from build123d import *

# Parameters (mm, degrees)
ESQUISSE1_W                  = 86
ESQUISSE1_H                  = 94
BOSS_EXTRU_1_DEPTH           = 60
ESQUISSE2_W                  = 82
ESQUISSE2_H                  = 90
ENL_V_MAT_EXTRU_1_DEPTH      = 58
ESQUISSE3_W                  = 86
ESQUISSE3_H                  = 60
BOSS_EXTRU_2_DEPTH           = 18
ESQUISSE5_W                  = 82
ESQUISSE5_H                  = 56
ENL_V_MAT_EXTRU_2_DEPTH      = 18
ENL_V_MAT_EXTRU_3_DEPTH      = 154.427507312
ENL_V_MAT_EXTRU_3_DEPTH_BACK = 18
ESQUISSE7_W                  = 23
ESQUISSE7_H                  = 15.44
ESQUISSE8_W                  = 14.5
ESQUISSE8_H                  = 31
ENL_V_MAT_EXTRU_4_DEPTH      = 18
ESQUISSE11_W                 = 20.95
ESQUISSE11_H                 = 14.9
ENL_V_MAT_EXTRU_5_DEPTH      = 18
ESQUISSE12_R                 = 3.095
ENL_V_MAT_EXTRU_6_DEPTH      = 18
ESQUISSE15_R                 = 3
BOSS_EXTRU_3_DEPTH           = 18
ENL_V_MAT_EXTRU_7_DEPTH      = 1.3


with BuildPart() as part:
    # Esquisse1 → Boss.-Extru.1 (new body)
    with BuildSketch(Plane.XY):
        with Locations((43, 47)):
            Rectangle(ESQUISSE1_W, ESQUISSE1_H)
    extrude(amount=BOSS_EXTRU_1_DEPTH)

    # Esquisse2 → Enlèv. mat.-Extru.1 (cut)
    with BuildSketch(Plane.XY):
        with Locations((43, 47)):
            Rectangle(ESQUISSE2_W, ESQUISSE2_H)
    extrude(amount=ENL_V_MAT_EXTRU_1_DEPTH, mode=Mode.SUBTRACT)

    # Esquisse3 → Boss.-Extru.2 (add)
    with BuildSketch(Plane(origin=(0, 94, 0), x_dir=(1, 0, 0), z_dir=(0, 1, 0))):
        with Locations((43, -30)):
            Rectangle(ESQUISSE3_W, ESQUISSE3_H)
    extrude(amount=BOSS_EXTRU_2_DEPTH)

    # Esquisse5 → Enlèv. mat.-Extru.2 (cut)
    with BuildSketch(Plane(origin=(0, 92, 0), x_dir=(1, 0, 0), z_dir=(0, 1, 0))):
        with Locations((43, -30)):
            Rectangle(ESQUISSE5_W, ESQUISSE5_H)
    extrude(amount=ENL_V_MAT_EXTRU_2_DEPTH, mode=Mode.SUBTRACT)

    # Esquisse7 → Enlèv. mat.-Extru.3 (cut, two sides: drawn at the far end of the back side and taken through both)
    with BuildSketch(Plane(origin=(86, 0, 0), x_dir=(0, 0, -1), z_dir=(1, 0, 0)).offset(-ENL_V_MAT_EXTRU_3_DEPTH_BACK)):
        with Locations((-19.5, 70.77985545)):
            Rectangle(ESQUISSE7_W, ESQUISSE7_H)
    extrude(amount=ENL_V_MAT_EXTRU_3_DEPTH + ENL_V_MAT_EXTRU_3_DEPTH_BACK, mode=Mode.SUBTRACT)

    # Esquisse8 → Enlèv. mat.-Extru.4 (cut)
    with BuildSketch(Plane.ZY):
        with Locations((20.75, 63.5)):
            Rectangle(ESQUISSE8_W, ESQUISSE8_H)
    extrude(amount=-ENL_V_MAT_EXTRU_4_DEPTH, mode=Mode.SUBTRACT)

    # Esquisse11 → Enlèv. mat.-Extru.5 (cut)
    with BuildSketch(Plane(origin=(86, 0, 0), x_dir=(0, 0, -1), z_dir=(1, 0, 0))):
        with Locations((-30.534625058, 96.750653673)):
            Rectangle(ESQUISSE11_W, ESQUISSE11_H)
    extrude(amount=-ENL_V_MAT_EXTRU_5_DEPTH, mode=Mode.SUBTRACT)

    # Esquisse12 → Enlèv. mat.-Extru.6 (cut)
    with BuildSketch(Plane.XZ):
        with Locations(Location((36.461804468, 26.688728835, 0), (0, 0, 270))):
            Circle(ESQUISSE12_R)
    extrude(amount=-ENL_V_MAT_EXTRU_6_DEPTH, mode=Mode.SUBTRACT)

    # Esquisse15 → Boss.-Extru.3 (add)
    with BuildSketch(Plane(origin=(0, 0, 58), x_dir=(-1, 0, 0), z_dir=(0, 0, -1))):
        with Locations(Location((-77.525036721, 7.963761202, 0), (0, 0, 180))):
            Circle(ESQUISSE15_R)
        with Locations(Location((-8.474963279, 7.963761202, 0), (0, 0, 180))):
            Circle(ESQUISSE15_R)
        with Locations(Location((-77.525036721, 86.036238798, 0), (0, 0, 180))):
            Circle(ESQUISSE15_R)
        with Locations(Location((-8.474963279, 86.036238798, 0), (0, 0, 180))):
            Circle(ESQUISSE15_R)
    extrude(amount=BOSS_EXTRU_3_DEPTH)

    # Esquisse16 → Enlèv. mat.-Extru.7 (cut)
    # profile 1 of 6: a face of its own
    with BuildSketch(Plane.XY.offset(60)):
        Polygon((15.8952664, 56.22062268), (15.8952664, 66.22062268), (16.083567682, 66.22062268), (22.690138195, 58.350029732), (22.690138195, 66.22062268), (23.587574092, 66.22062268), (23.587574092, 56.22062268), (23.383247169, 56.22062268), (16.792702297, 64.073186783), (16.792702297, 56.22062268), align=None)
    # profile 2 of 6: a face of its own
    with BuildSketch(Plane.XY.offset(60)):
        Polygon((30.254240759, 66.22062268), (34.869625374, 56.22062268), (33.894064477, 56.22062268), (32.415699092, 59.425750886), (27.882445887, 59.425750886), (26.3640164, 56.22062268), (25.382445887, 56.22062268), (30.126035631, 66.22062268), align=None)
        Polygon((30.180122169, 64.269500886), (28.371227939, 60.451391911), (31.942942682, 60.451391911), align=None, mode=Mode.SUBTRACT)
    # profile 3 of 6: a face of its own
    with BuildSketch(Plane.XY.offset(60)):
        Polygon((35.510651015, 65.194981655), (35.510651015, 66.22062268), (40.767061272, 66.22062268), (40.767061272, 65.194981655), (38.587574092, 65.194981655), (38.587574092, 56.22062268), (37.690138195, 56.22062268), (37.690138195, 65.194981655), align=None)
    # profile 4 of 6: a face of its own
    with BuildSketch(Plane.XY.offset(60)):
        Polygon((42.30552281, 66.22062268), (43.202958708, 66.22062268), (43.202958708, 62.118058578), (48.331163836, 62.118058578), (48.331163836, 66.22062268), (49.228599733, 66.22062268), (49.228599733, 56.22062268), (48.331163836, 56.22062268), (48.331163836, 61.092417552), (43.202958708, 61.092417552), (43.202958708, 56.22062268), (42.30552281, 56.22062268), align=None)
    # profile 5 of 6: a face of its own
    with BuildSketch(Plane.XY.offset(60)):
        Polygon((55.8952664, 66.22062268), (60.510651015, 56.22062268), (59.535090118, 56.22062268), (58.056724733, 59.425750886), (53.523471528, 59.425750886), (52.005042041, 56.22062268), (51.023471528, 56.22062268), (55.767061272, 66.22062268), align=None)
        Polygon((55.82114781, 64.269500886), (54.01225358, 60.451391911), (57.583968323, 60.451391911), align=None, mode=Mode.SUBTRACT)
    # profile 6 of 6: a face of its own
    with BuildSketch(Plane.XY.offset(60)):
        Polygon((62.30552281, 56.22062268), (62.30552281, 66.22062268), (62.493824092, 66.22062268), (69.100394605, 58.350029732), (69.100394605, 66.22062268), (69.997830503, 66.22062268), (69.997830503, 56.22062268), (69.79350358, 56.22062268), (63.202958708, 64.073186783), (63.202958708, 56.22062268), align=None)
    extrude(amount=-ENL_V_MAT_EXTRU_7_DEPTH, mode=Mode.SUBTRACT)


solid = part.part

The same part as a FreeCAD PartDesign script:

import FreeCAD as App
import Part
import Sketcher


def add_polygon(sketch, points):
    """Adds a closed chain of lines whose ends are joined by coincident constraints."""
    first, n = sketch.GeometryCount, len(points)
    for a, b in zip(points, points[1:] + points[:1]):
        sketch.addGeometry(Part.LineSegment(App.Vector(*a, 0), App.Vector(*b, 0)), False)
    for i in range(n):
        sketch.addConstraint(Sketcher.Constraint("Coincident", first + i, 2, first + (i + 1) % n, 1))

doc = App.newDocument("Part")
body = doc.addObject("PartDesign::Body", "Body")

# Sketch on XY plane
sketch1 = body.newObject("Sketcher::SketchObject", "Sketch")
sketch1.AttachmentSupport = (doc.getObject("XY_Plane"), [""])
sketch1.MapMode = "FlatFace"
add_polygon(sketch1, [(0, 94), (0, 0), (86, 0), (86, 94)])  # lines 0-3
sketch1.addConstraint([
    Sketcher.Constraint("Vertical", 0),
    Sketcher.Constraint("Horizontal", 1),
    Sketcher.Constraint("Vertical", 2),
    Sketcher.Constraint("Horizontal", 3),
    Sketcher.Constraint("Coincident", 0, 2, -1, 1),
    Sketcher.Constraint("DistanceX", 1, 1, 1, 2, 86.0),
    Sketcher.Constraint("DistanceY", 0, 2, 0, 1, 94.0),
])
pad1 = body.newObject("PartDesign::Pad", "Pad")
pad1.Profile = sketch1
pad1.Length = 60

# Sketch on XY plane
sketch2 = body.newObject("Sketcher::SketchObject", "Sketch001")
sketch2.AttachmentSupport = (doc.getObject("XY_Plane"), [""])
sketch2.MapMode = "FlatFace"
add_polygon(sketch2, [(2, 92), (2, 2), (84, 2), (84, 92)])  # lines 0-3
sketch2.addConstraint([
    Sketcher.Constraint("Vertical", 0),
    Sketcher.Constraint("Horizontal", 1),
    Sketcher.Constraint("Vertical", 2),
    Sketcher.Constraint("Horizontal", 3),
    Sketcher.Constraint("DistanceX", 1, 1, 1, 2, 82.0),
    Sketcher.Constraint("DistanceY", 0, 2, 0, 1, 90.0),
    Sketcher.Constraint("DistanceX", -1, 1, 0, 2, 2.0),
    Sketcher.Constraint("DistanceY", -1, 1, 0, 2, 2.0),
])
pocket1 = body.newObject("PartDesign::Pocket", "Pocket")
pocket1.Profile = sketch2
pocket1.Length = 58
pocket1.Reversed = True

# Sketch on XZ plane
sketch3 = body.newObject("Sketcher::SketchObject", "Sketch002")
sketch3.AttachmentSupport = (doc.getObject("XZ_Plane"), [""])
sketch3.MapMode = "FlatFace"
sketch3.AttachmentOffset = App.Placement(App.Vector(0, 0, -94), App.Rotation())
add_polygon(sketch3, [(0, 0), (0, 60), (86, 60), (86, 0)])  # lines 0-3
sketch3.addConstraint([
    Sketcher.Constraint("Vertical", 0),
    Sketcher.Constraint("Horizontal", 1),
    Sketcher.Constraint("Vertical", 2),
    Sketcher.Constraint("Horizontal", 3),
    Sketcher.Constraint("Coincident", 3, 2, -1, 1),
    Sketcher.Constraint("DistanceX", 1, 1, 1, 2, 86.0),
    Sketcher.Constraint("DistanceY", 0, 1, 0, 2, 60.0),
])
pad2 = body.newObject("PartDesign::Pad", "Pad001")
pad2.Profile = sketch3
pad2.Length = 18
pad2.Reversed = True

# Sketch on XZ plane
sketch4 = body.newObject("Sketcher::SketchObject", "Sketch003")
sketch4.AttachmentSupport = (doc.getObject("XZ_Plane"), [""])
sketch4.MapMode = "FlatFace"
sketch4.AttachmentOffset = App.Placement(App.Vector(0, 0, -92), App.Rotation())
add_polygon(sketch4, [(2, 2), (2, 58), (84, 58), (84, 2)])  # lines 0-3
sketch4.addConstraint([
    Sketcher.Constraint("Vertical", 0),
    Sketcher.Constraint("Horizontal", 1),
    Sketcher.Constraint("Vertical", 2),
    Sketcher.Constraint("Horizontal", 3),
    Sketcher.Constraint("DistanceX", 1, 1, 1, 2, 82.0),
    Sketcher.Constraint("DistanceY", 0, 1, 0, 2, 56.0),
    Sketcher.Constraint("DistanceX", -1, 1, 0, 2, 2.0),
    Sketcher.Constraint("DistanceY", -1, 1, 0, 2, 58.0),
])
pocket2 = body.newObject("PartDesign::Pocket", "Pocket001")
pocket2.Profile = sketch4
pocket2.Length = 18

# Sketch on YZ plane
sketch5 = body.newObject("Sketcher::SketchObject", "Sketch004")
sketch5.AttachmentSupport = (doc.getObject("YZ_Plane"), [""])
sketch5.MapMode = "FlatFace"
sketch5.AttachmentOffset = App.Placement(App.Vector(0, 0, 86), App.Rotation())
add_polygon(sketch5, [(78, 31), (63, 31), (63, 8), (78, 8)])  # lines 0-3
sketch5.addConstraint([
    Sketcher.Constraint("Horizontal", 0),
    Sketcher.Constraint("Vertical", 1),
    Sketcher.Constraint("Horizontal", 2),
    Sketcher.Constraint("Vertical", 3),
    Sketcher.Constraint("DistanceY", 1, 2, 1, 1, 23.0),
    Sketcher.Constraint("DistanceY", -1, 1, 0, 2, 31.0),
    Sketcher.Constraint("DistanceX", 0, 2, 0, 1, 15.44),
    Sketcher.Constraint("DistanceX", -1, 1, 0, 2, 63.059855),
])
pocket3 = body.newObject("PartDesign::Pocket", "Pocket002")
pocket3.Profile = sketch5
pocket3.Type = "TwoLengths"
pocket3.Length = 154.427507
pocket3.Length2 = 18
pocket3.Reversed = True

# Sketch on YZ plane
sketch6 = body.newObject("Sketcher::SketchObject", "Sketch005")
sketch6.AttachmentSupport = (doc.getObject("YZ_Plane"), [""])
sketch6.MapMode = "FlatFace"
add_polygon(sketch6, [(79, 14), (48, 14), (48, 28), (79, 28)])  # lines 0-3
sketch6.addConstraint([
    Sketcher.Constraint("Horizontal", 0),
    Sketcher.Constraint("Vertical", 1),
    Sketcher.Constraint("Horizontal", 2),
    Sketcher.Constraint("Vertical", 3),
    Sketcher.Constraint("DistanceX", 0, 2, 0, 1, 31.0),
    Sketcher.Constraint("DistanceY", 1, 1, 1, 2, 14.5),
    Sketcher.Constraint("DistanceX", -1, 1, 0, 2, 48.0),
    Sketcher.Constraint("DistanceY", -1, 1, 1, 2, 28.0),
])
pocket4 = body.newObject("PartDesign::Pocket", "Pocket003")
pocket4.Profile = sketch6
pocket4.Length = 18
pocket4.Reversed = True

# Sketch on YZ plane
sketch7 = body.newObject("Sketcher::SketchObject", "Sketch006")
sketch7.AttachmentSupport = (doc.getObject("YZ_Plane"), [""])
sketch7.MapMode = "FlatFace"
sketch7.AttachmentOffset = App.Placement(App.Vector(0, 0, 86), App.Rotation())
add_polygon(sketch7, [(104, 41), (89, 41), (89, 20), (104, 20)])  # lines 0-3
sketch7.addConstraint([
    Sketcher.Constraint("Horizontal", 0),
    Sketcher.Constraint("Vertical", 1),
    Sketcher.Constraint("Horizontal", 2),
    Sketcher.Constraint("Vertical", 3),
    Sketcher.Constraint("DistanceX", 0, 2, 0, 1, 14.9),
    Sketcher.Constraint("DistanceY", 1, 2, 1, 1, 20.95),
    Sketcher.Constraint("DistanceX", -1, 1, 0, 2, 89.300654),
    Sketcher.Constraint("DistanceY", -1, 1, 0, 2, 41.009625),
])
pocket5 = body.newObject("PartDesign::Pocket", "Pocket004")
pocket5.Profile = sketch7
pocket5.Length = 18

# Sketch on XZ plane
sketch8 = body.newObject("Sketcher::SketchObject", "Sketch007")
sketch8.AttachmentSupport = (doc.getObject("XZ_Plane"), [""])
sketch8.MapMode = "FlatFace"
sketch8.addGeometry(Part.Circle(App.Vector(36.5, 26.7, 0), App.Vector(0, 0, 1), 3.1), False)
sketch8.addConstraint([
    Sketcher.Constraint("Diameter", 0, 6.19),
    Sketcher.Constraint("DistanceY", -1, 1, 0, 3, 26.688729),
    Sketcher.Constraint("DistanceX", -1, 1, 0, 3, 36.461804),
])
pocket6 = body.newObject("PartDesign::Pocket", "Pocket005")
pocket6.Profile = sketch8
pocket6.Length = 18

# Sketch on XY plane
sketch9 = body.newObject("Sketcher::SketchObject", "Sketch008")
sketch9.AttachmentSupport = (doc.getObject("XY_Plane"), [""])
sketch9.MapMode = "FlatFace"
sketch9.AttachmentOffset = App.Placement(App.Vector(0, 0, 58), App.Rotation())
sketch9.addGeometry([
    Part.Circle(App.Vector(77.5, 8, 0), App.Vector(0, 0, 1), 3),
    Part.Circle(App.Vector(8.5, 8, 0), App.Vector(0, 0, 1), 3),
    Part.Circle(App.Vector(77.5, 86, 0), App.Vector(0, 0, 1), 3),
    Part.Circle(App.Vector(8.5, 86, 0), App.Vector(0, 0, 1), 3),
], False)
sketch9.addConstraint([
    Sketcher.Constraint("Equal", 0, 1),
    Sketcher.Constraint("Equal", 1, 2),
    Sketcher.Constraint("Equal", 2, 3),
    Sketcher.Constraint("Horizontal", 0, 3, 1, 3),
    Sketcher.Constraint("Horizontal", 2, 3, 3, 3),
    Sketcher.Constraint("Vertical", 0, 3, 2, 3),
    Sketcher.Constraint("Vertical", 1, 3, 3, 3),
    Sketcher.Constraint("Diameter", 0, 6.0),
    Sketcher.Constraint("DistanceY", -1, 1, 0, 3, 7.963761),
    Sketcher.Constraint("DistanceY", -1, 1, 2, 3, 86.036239),
    Sketcher.Constraint("DistanceX", -1, 1, 0, 3, 77.525037),
    Sketcher.Constraint("DistanceX", -1, 1, 1, 3, 8.474963),
])
pad3 = body.newObject("PartDesign::Pad", "Pad002")
pad3.Profile = sketch9
pad3.Length = 18
pad3.Reversed = True

# Sketch on XY plane
sketch10 = body.newObject("Sketcher::SketchObject", "Sketch009")
sketch10.AttachmentSupport = (doc.getObject("XY_Plane"), [""])
sketch10.MapMode = "FlatFace"
sketch10.AttachmentOffset = App.Placement(App.Vector(0, 0, 60), App.Rotation())
add_polygon(sketch10, [(15.9, 66.22), (15.9, 56.22), (16.79, 56.22), (16.79, 64.07), (23.38, 56.22), (23.59, 56.22), (23.59, 66.22), (22.69, 66.22), (22.69, 58.35), (16.08, 66.22)])  # lines 0-9
add_polygon(sketch10, [(34.87, 56.22), (30.25, 66.22), (30.13, 66.22), (25.38, 56.22), (26.36, 56.22), (27.88, 59.43), (32.42, 59.43), (33.89, 56.22)])  # lines 10-17
add_polygon(sketch10, [(30.18, 64.27), (31.94, 60.45), (28.37, 60.45)])  # lines 18-20
add_polygon(sketch10, [(35.51, 66.22), (35.51, 65.19), (37.69, 65.19), (37.69, 56.22), (38.59, 56.22), (38.59, 65.19), (40.77, 65.19), (40.77, 66.22)])  # lines 21-28
add_polygon(sketch10, [(43.2, 66.22), (42.31, 66.22), (42.31, 56.22), (43.2, 56.22), (43.2, 61.09), (48.33, 61.09), (48.33, 56.22), (49.23, 56.22), (49.23, 66.22), (48.33, 66.22), (48.33, 62.12), (43.2, 62.12)])  # lines 29-40
add_polygon(sketch10, [(60.51, 56.22), (55.9, 66.22), (55.77, 66.22), (51.02, 56.22), (52.01, 56.22), (53.52, 59.43), (58.06, 59.43), (59.54, 56.22)])  # lines 41-48
add_polygon(sketch10, [(55.82, 64.27), (57.58, 60.45), (54.01, 60.45)])  # lines 49-51
add_polygon(sketch10, [(62.31, 66.22), (62.31, 56.22), (63.2, 56.22), (63.2, 64.07), (69.79, 56.22), (70, 56.22), (70, 66.22), (69.1, 66.22), (69.1, 58.35), (62.49, 66.22)])  # lines 52-61
sketch10.addConstraint([
    Sketcher.Constraint("Vertical", 0),
    Sketcher.Constraint("Horizontal", 1),
    Sketcher.Constraint("Vertical", 2),
    Sketcher.Constraint("Horizontal", 4),
    Sketcher.Constraint("Vertical", 5),
    Sketcher.Constraint("Horizontal", 6),
    Sketcher.Constraint("Vertical", 7),
    Sketcher.Constraint("Horizontal", 9),
    Sketcher.Constraint("Horizontal", 11),
    Sketcher.Constraint("Horizontal", 13),
    Sketcher.Constraint("Horizontal", 15),
    Sketcher.Constraint("Horizontal", 17),
    Sketcher.Constraint("Horizontal", 19),
    Sketcher.Constraint("Vertical", 21),
    Sketcher.Constraint("Horizontal", 22),
    Sketcher.Constraint("Vertical", 23),
    Sketcher.Constraint("Horizontal", 24),
    Sketcher.Constraint("Vertical", 25),
    Sketcher.Constraint("Horizontal", 26),
    Sketcher.Constraint("Vertical", 27),
    Sketcher.Constraint("Horizontal", 28),
    Sketcher.Constraint("Horizontal", 29),
    Sketcher.Constraint("Vertical", 30),
    Sketcher.Constraint("Horizontal", 31),
    Sketcher.Constraint("Vertical", 32),
    Sketcher.Constraint("Horizontal", 33),
    Sketcher.Constraint("Vertical", 34),
    Sketcher.Constraint("Horizontal", 35),
    Sketcher.Constraint("Vertical", 36),
    Sketcher.Constraint("Horizontal", 37),
    Sketcher.Constraint("Vertical", 38),
    Sketcher.Constraint("Horizontal", 39),
    Sketcher.Constraint("Vertical", 40),
    Sketcher.Constraint("Horizontal", 42),
    Sketcher.Constraint("Horizontal", 44),
    Sketcher.Constraint("Horizontal", 46),
    Sketcher.Constraint("Horizontal", 48),
    Sketcher.Constraint("Horizontal", 50),
    Sketcher.Constraint("Vertical", 52),
    Sketcher.Constraint("Horizontal", 53),
    Sketcher.Constraint("Vertical", 54),
    Sketcher.Constraint("Horizontal", 56),
    Sketcher.Constraint("Vertical", 57),
    Sketcher.Constraint("Horizontal", 58),
    Sketcher.Constraint("Vertical", 59),
    Sketcher.Constraint("Horizontal", 61),
    Sketcher.Constraint("Parallel", 10, 41),
    Sketcher.Constraint("Parallel", 12, 43),
    Sketcher.Constraint("Parallel", 14, 45),
    Sketcher.Constraint("Parallel", 16, 47),
    Sketcher.Constraint("Parallel", 18, 49),
    Sketcher.Constraint("Parallel", 20, 51),
    Sketcher.Constraint("Parallel", 3, 55),
    Sketcher.Constraint("Parallel", 8, 60),
    Sketcher.Constraint("Horizontal", 1, 2, 3, 2),
    Sketcher.Constraint("Horizontal", 6, 2, 8, 2),
    Sketcher.Constraint("Horizontal", 9, 2, 10, 2),
    Sketcher.Constraint("Horizontal", 4, 2, 12, 2),
    Sketcher.Constraint("Horizontal", 13, 2, 16, 2),
    Sketcher.Constraint("Horizontal", 17, 2, 23, 2),
    Sketcher.Constraint("Horizontal", 22, 2, 25, 2),
    Sketcher.Constraint("Horizontal", 11, 2, 27, 2),
    Sketcher.Constraint("Horizontal", 28, 2, 29, 2),
    Sketcher.Constraint("Horizontal", 24, 2, 30, 2),
    Sketcher.Constraint("Horizontal", 31, 2, 34, 2),
    Sketcher.Constraint("Horizontal", 29, 2, 36, 2),
    Sketcher.Constraint("Horizontal", 40, 2, 41, 2),
    Sketcher.Constraint("Horizontal", 35, 2, 43, 2),
    Sketcher.Constraint("Horizontal", 15, 2, 45, 2),
    Sketcher.Constraint("Horizontal", 44, 2, 47, 2),
    Sketcher.Constraint("Horizontal", 19, 2, 49, 2),
    Sketcher.Constraint("Horizontal", 20, 2, 51, 2),
    Sketcher.Constraint("Horizontal", 48, 2, 52, 2),
    Sketcher.Constraint("Horizontal", 2, 2, 54, 2),
    Sketcher.Constraint("Horizontal", 53, 2, 55, 2),
    Sketcher.Constraint("Horizontal", 42, 2, 57, 2),
    Sketcher.Constraint("Horizontal", 7, 2, 59, 2),
    Sketcher.Constraint("Horizontal", 58, 2, 60, 2),
    Sketcher.Constraint("Vertical", 34, 2, 37, 2),
    Sketcher.Constraint("Vertical", 32, 2, 39, 2),
    Sketcher.Constraint("Equal", 1, 6),
    Sketcher.Constraint("Equal", 6, 24),
    Sketcher.Constraint("Equal", 22, 26),
    Sketcher.Constraint("Equal", 24, 29),
    Sketcher.Constraint("Equal", 31, 35),
    Sketcher.Constraint("Equal", 11, 42),
    Sketcher.Constraint("Equal", 13, 44),
    Sketcher.Constraint("Equal", 15, 46),
    Sketcher.Constraint("Equal", 37, 53),
    Sketcher.Constraint("Equal", 4, 56),
    Sketcher.Constraint("Equal", 53, 58),
    Sketcher.Constraint("DistanceY", 0, 2, 0, 1, 10.0),
    Sketcher.Constraint("DistanceX", 9, 2, 9, 1, 0.188301),
    Sketcher.Constraint("DistanceX", 13, 1, 13, 2, 0.981571),
    Sketcher.Constraint("DistanceX", 17, 1, 17, 2, 0.975561),
    Sketcher.Constraint("DistanceX", 28, 2, 28, 1, 5.25641),
    Sketcher.Constraint("DistanceY", 21, 2, 21, 1, 1.025641),
    Sketcher.Constraint("DistanceX", -1, 1, 15, 2, 32.415699),
    Sketcher.Constraint("DistanceY", -1, 1, 20, 2, 64.269501),
    Sketcher.Constraint("DistanceX", -1, 1, 35, 2, 49.2286),
    Sketcher.Constraint("Distance", 10, 11.013709),
    Sketcher.Constraint("DistanceX", 1, 1, 1, 2, 0.897436),
    Sketcher.Constraint("DistanceX", 4, 1, 4, 2, 0.204327),
    Sketcher.Constraint("DistanceX", 11, 2, 11, 1, 0.128205),
    Sketcher.Constraint("DistanceX", 15, 1, 15, 2, 4.533253),
    Sketcher.Constraint("DistanceX", 19, 2, 19, 1, 3.571715),
    Sketcher.Constraint("DistanceX", 33, 1, 33, 2, 5.128205),
    Sketcher.Constraint("DistanceY", 2, 1, 2, 2, 7.852564),
    Sketcher.Constraint("DistanceY", 7, 2, 7, 1, 7.870593),
    Sketcher.Constraint("DistanceY", 32, 1, 32, 2, 4.871795),
    Sketcher.Constraint("DistanceY", 38, 2, 38, 1, 4.102564),
    Sketcher.Constraint("DistanceX", -1, 1, 6, 2, 22.690138),
    Sketcher.Constraint("DistanceY", -1, 1, 7, 2, 58.35003),
    Sketcher.Constraint("DistanceX", -1, 1, 10, 2, 30.254241),
    Sketcher.Constraint("DistanceY", -1, 1, 14, 2, 59.425751),
    Sketcher.Constraint("DistanceY", -1, 1, 18, 2, 60.451392),
    Sketcher.Constraint("DistanceX", -1, 1, 21, 2, 35.510651),
    Sketcher.Constraint("DistanceX", -1, 1, 42, 2, 55.767061),
    Sketcher.Constraint("DistanceX", -1, 1, 43, 2, 51.023472),
    Sketcher.Constraint("DistanceX", -1, 1, 49, 2, 57.583968),
    Sketcher.Constraint("DistanceX", -1, 1, 53, 2, 63.202959),
    Sketcher.Constraint("DistanceX", -1, 1, 56, 2, 69.997831),
    Sketcher.Constraint("Distance", 18, 4.205412),
    Sketcher.Constraint("DistanceX", -1, 1, 18, 2, 31.942943),
])
pocket7 = body.newObject("PartDesign::Pocket", "Pocket006")
pocket7.Profile = sketch10
pocket7.Length = 1.3

doc.recompute()
